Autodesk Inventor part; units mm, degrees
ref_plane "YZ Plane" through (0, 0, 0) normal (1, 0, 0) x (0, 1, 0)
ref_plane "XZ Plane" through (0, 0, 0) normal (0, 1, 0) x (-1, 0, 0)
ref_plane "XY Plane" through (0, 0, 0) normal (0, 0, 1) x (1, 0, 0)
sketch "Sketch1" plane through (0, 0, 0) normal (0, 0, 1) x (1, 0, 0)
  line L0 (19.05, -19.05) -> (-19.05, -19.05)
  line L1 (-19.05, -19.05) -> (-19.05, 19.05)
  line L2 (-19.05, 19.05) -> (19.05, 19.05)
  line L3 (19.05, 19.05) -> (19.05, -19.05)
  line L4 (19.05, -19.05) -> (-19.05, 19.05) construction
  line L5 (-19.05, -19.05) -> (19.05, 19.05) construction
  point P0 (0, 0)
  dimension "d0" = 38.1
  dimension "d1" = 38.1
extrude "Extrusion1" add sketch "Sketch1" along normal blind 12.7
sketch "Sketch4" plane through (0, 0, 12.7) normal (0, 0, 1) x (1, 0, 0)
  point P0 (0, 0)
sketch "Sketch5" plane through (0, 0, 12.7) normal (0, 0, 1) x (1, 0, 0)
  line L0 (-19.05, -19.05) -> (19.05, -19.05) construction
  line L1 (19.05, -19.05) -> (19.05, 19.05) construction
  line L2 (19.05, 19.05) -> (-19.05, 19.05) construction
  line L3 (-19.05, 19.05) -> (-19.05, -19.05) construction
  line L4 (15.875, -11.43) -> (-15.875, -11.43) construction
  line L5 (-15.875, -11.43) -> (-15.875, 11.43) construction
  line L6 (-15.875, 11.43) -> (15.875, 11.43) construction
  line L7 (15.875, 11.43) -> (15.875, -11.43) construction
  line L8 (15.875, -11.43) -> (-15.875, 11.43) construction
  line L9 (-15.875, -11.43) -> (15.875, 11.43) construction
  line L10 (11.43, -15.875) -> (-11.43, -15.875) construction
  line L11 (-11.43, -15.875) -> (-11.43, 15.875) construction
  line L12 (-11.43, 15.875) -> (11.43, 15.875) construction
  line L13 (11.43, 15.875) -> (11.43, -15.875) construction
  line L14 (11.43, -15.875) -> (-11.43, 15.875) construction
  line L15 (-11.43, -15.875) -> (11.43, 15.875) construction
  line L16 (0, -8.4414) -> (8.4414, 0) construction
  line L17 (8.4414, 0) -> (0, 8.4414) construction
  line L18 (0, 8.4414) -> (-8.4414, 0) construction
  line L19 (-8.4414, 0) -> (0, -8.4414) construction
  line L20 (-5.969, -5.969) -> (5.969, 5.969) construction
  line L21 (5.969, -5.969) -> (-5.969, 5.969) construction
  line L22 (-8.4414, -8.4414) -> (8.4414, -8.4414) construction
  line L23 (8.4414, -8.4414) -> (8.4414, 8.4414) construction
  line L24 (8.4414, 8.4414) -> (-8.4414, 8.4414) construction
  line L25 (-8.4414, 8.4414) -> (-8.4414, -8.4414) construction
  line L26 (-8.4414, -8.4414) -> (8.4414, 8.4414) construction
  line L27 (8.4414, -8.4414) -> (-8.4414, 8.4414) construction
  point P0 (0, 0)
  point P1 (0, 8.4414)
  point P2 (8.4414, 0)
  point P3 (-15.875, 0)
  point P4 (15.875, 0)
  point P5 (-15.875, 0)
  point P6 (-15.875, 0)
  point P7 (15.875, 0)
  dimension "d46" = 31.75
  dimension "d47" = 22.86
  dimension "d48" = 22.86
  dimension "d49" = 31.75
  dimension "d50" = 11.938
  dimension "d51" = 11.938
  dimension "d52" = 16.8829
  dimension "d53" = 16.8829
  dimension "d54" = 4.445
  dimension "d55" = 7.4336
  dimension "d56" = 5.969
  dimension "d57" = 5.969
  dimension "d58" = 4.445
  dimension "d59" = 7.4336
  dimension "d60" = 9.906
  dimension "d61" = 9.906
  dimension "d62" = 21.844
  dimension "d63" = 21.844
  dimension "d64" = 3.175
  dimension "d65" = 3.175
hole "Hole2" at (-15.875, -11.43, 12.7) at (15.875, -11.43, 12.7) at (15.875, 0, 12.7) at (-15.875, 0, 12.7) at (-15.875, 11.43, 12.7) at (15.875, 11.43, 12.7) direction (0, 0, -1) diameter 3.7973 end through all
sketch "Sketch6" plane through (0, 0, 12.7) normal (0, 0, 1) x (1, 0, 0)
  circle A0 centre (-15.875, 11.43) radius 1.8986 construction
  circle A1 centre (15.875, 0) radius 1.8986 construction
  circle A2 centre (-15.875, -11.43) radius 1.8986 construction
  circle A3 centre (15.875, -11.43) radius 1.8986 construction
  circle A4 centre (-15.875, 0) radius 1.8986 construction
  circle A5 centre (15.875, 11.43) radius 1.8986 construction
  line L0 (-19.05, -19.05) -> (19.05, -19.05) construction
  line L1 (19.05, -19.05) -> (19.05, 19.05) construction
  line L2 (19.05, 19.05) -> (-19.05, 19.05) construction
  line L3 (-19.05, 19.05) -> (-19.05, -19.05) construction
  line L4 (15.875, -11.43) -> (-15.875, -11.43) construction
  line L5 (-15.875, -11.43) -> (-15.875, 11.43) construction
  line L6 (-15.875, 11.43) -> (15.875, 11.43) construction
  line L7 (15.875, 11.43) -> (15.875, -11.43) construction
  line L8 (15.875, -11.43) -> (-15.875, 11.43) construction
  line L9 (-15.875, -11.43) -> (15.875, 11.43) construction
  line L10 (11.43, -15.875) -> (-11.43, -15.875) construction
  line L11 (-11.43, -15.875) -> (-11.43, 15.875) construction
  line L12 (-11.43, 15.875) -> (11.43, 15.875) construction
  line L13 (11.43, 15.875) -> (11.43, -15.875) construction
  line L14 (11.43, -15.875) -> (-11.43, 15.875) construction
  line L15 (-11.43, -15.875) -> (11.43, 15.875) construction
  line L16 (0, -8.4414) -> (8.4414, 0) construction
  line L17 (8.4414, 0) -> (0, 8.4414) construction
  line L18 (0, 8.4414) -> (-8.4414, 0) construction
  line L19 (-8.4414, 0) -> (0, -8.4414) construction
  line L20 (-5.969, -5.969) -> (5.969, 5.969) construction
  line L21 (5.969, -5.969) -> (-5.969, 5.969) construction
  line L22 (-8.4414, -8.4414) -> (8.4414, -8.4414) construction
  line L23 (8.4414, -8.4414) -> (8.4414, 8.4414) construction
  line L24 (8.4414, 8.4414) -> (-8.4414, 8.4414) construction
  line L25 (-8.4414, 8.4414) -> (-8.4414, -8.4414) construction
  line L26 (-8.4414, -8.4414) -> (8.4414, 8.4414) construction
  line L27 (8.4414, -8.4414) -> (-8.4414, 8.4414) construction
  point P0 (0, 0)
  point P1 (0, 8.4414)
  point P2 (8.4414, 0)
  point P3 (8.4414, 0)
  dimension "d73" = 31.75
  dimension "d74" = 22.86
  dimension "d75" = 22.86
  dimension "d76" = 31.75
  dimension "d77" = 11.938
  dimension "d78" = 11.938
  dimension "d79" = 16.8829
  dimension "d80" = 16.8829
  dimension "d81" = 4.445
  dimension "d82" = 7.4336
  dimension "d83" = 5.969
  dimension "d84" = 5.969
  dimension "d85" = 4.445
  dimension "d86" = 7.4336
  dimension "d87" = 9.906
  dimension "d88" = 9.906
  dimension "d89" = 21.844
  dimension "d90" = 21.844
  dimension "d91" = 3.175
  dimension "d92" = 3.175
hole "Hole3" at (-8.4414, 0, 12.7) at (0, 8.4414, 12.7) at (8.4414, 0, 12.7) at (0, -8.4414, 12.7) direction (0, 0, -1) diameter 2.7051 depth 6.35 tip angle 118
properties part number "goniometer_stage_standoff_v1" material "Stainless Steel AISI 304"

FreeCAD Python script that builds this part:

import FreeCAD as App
import Part
import Sketcher

V = App.Vector
Q = App.Units.Quantity

doc = App.newDocument("Part")
params = doc.addObject("Spreadsheet::Sheet", "Params")
for row, (alias, value) in enumerate([
    ("sketch1_width", "1.5 in"),
    ("pad1_length", "0.5 in"),
    ("hole_diameter", "0.1495 in"),
    ("hole2_diameter", "0.1065 in"),
    ("hole2_depth", "0.25 in"),
], start=1):
    params.set(f"A{row}", alias)
    params.set(f"B{row}", "=" + value)
    params.setAlias(f"B{row}", alias)

body = doc.addObject("PartDesign::Body", "Body")

# Sketch on XY plane
sketch1 = doc.addObject("Sketcher::SketchObject", "Sketch")
body.addObject(sketch1)
sketch1.AttachmentSupport = (doc.XY_Plane, [""])
sketch1.MapMode = "FlatFace"
sketch1.addGeometry([
    Part.LineSegment(V(-19.05, -19.05, 0), V(19.05, -19.05, 0)),
    Part.LineSegment(V(19.05, -19.05, 0), V(19.05, 19.05, 0)),
    Part.LineSegment(V(19.05, 19.05, 0), V(-19.05, 19.05, 0)),
    Part.LineSegment(V(-19.05, 19.05, 0), V(-19.05, -19.05, 0)),
], False)
sketch1.addConstraint([
    Sketcher.Constraint("Coincident", 0, 2, 1, 1),
    Sketcher.Constraint("Coincident", 1, 2, 2, 1),
    Sketcher.Constraint("Coincident", 2, 2, 3, 1),
    Sketcher.Constraint("Coincident", 3, 2, 0, 1),
    Sketcher.Constraint("Horizontal", 0),
    Sketcher.Constraint("Vertical", 1),
    Sketcher.Constraint("Horizontal", 2),
    Sketcher.Constraint("Vertical", 3),
    Sketcher.Constraint("Symmetric", 0, 2, 2, 2, -1, 1),
    Sketcher.Constraint("Equal", 2, 1),
    Sketcher.Constraint("DistanceX", 0, 1, 0, 2, Q("1.5 in")),
])
sketch1.setExpression("Constraints[10]", "Params.sketch1_width")
pad1 = doc.addObject("PartDesign::Pad", "Pad")
body.addObject(pad1)
pad1.Profile = sketch1
pad1.setExpression("Length", "Params.pad1_length")

# Sketch on XY plane
sketch2 = doc.addObject("Sketcher::SketchObject", "Sketch001")
body.addObject(sketch2)
sketch2.AttachmentSupport = (doc.XY_Plane, [""])
sketch2.MapMode = "FlatFace"
sketch2.AttachmentOffset = App.Placement(V(0, 0, 0.5 * 25.4), App.Rotation())
sketch2.addGeometry([
    Part.Circle(V(-15.875, -11.43, 0), V(0, 0, 1), 1.89865),  # 0
    Part.Circle(V(15.875, -11.43, 0), V(0, 0, 1), 1.89865),  # 1
    Part.Circle(V(15.875, 0, 0), V(0, 0, 1), 1.89865),  # 2
    Part.Circle(V(-15.875, 0, 0), V(0, 0, 1), 1.89865),  # 3
    Part.Circle(V(-15.875, 11.43, 0), V(0, 0, 1), 1.89865),  # 4
    Part.Circle(V(15.875, 11.43, 0), V(0, 0, 1), 1.89865),  # 5
], False)
sketch2.addConstraint([
    Sketcher.Constraint("Equal", 0, 1),
    Sketcher.Constraint("Equal", 1, 2),
    Sketcher.Constraint("Equal", 2, 3),
    Sketcher.Constraint("Equal", 3, 4),
    Sketcher.Constraint("Equal", 4, 5),
    Sketcher.Constraint("Symmetric", 2, 3, 3, 3, -1, 1),
    Sketcher.Constraint("Symmetric", 1, 3, 4, 3, -1, 1),
    Sketcher.Constraint("Symmetric", 0, 3, 5, 3, -1, 1),
    Sketcher.Constraint("Symmetric", 0, 3, 1, 3, -2),
    Sketcher.Constraint("PointOnObject", 2, 3, -1),
    Sketcher.Constraint("Vertical", 1, 3, 2, 3),
    Sketcher.Constraint("Diameter", 0, Q("0.1495 in")),
    Sketcher.Constraint("DistanceY", 0, 3, 4, 3, Q("0.9 in")),
    Sketcher.Constraint("DistanceX", 0, 3, 1, 3, Q("1.25 in")),
])
doc.recompute()
hole = doc.addObject("PartDesign::Hole", "Hole")
body.addObject(hole)
hole.Profile = sketch2
hole.ThreadType = "None"
hole.setExpression("Diameter", "Params.hole_diameter")
hole.DepthType = "ThroughAll"

# Sketch on XY plane
sketch3 = doc.addObject("Sketcher::SketchObject", "Sketch002")
body.addObject(sketch3)
sketch3.AttachmentSupport = (doc.XY_Plane, [""])
sketch3.MapMode = "FlatFace"
sketch3.AttachmentOffset = App.Placement(V(0, 0, 0.5 * 25.4), App.Rotation())
sketch3.addGeometry([
    Part.Circle(V(-8.4414, 0, 0), V(0, 0, 1), 1.35255),
    Part.Circle(V(0, 8.4414, 0), V(0, 0, 1), 1.35255),
    Part.Circle(V(8.4414, 0, 0), V(0, 0, 1), 1.35255),
    Part.Circle(V(0, -8.4414, 0), V(0, 0, 1), 1.35255),
], False)
sketch3.addConstraint([
    Sketcher.Constraint("Equal", 0, 1),
    Sketcher.Constraint("Equal", 1, 2),
    Sketcher.Constraint("Equal", 2, 3),
    Sketcher.Constraint("Symmetric", 0, 3, 2, 3, -1, 1),
    Sketcher.Constraint("Symmetric", 1, 3, 3, 3, -1, 1),
    Sketcher.Constraint("PointOnObject", 0, 3, -1),
    Sketcher.Constraint("PointOnObject", 1, 3, -2),
    Sketcher.Constraint("Diameter", 0, Q("0.1065 in")),
    Sketcher.Constraint("DistanceX", 0, 3, -1, 1, 8.4414),
    Sketcher.Constraint("DistanceY", -1, 1, 1, 3, 8.4414),
])
doc.recompute()
hole2 = doc.addObject("PartDesign::Hole", "Hole001")
body.addObject(hole2)
hole2.Profile = sketch3
hole2.ThreadType = "None"
hole2.setExpression("Diameter", "Params.hole2_diameter")
hole2.DepthType = "Dimension"
hole2.setExpression("Depth", "Params.hole2_depth")
hole2.DrillPoint = "Angled"
hole2.DrillPointAngle = 118

doc.recompute()
